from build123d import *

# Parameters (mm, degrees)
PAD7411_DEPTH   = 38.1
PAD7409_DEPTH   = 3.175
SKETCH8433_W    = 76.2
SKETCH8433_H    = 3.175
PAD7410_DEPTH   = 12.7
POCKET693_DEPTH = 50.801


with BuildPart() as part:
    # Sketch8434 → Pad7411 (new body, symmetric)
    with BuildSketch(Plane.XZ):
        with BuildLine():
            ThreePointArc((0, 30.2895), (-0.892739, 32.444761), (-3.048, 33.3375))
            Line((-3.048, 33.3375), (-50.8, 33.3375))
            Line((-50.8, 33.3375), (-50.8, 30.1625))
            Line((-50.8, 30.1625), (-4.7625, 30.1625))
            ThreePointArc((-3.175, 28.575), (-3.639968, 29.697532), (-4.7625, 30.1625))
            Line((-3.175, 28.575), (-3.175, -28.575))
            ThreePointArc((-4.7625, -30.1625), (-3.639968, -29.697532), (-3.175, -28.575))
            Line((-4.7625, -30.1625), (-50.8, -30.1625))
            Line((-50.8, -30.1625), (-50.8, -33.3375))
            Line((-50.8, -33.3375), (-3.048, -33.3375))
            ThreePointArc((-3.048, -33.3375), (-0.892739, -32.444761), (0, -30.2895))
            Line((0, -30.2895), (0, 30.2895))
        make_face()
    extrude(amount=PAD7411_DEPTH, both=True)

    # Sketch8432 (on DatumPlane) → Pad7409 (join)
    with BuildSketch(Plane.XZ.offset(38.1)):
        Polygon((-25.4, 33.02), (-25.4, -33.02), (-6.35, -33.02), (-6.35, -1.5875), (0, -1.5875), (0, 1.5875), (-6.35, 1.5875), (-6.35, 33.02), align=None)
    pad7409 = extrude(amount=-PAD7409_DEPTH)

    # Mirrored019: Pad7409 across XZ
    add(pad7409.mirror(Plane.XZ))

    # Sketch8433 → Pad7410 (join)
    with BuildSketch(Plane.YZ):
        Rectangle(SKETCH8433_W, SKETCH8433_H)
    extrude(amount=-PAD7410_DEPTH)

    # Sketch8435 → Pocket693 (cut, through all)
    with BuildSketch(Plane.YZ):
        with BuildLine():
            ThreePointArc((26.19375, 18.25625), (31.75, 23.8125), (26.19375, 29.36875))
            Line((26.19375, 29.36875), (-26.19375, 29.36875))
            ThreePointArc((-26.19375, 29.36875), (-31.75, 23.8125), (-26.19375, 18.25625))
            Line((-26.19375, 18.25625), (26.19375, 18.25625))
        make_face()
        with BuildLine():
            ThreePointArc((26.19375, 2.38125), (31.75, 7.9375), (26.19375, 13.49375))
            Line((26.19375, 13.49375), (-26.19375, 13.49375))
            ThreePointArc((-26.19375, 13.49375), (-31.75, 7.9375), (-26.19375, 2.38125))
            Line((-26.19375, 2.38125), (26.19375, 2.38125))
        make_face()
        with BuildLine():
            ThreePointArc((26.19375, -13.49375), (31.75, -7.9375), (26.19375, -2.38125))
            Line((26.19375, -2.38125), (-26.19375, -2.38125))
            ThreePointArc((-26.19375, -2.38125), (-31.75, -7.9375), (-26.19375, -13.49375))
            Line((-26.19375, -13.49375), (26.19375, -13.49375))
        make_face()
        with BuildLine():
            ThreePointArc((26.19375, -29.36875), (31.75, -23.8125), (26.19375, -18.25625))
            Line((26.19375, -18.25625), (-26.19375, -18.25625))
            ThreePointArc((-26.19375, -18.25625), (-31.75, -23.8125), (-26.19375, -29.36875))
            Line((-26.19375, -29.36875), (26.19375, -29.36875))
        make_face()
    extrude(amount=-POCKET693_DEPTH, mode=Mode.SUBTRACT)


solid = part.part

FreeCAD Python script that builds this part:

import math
import FreeCAD as App
import Part
import Sketcher
from FreeCAD import Vector
Q = App.Units.Quantity

doc = App.newDocument("Part")
params = doc.addObject("Spreadsheet::Sheet", "Params")
for row, (alias, value) in enumerate([
    ("sketch1_radius", "0.1200001 in"),
    ("sketch1_radius2", "0.0625 in"),
    ("sketch1_height", "2.25 in"),
    ("sketch1_width", "1.8125 in"),
    ("sketch1_height2", "0.125 in"),
    ("pad1_length", "3 in"),
    ("sketch2_height", "2.6 in"),
    ("sketch2_width", "0.75 in"),
    ("sketch2_height2", "0.125 in"),
    ("pad2_length", "0.125 in"),
    ("sketch3_width", "3 in"),
    ("sketch3_height", "0.125 in"),
    ("pad3_length", "0.5 in"),
    ("sketch4_radius", "0.21875 in"),
    ("sketch4_width", "2.0625 in"),
], start=1):
    params.set(f"A{row}", alias)
    params.set(f"B{row}", "=" + value)
    params.setAlias(f"B{row}", alias)

body = doc.addObject("PartDesign::Body", "Body")

# Sketch on XZ plane
sketch1 = body.newObject("Sketcher::SketchObject", "Sketch")
sketch1.AttachmentSupport = (doc.getObject("XZ_Plane"), [""])
sketch1.MapMode = "FlatFace"
sketch1.addGeometry(Part.ArcOfCircle(Part.Circle(Vector(-3, 30.3, 0), Vector(0, 0, 1), 3), math.radians(0), math.radians(90)), False)
sketch1.addGeometry(Part.LineSegment(Vector(-3, 33.3, 0), Vector(-50.8, 33.3, 0)), False)
sketch1.addGeometry(Part.LineSegment(Vector(-50.8, 33.3, 0), Vector(-50.8, 30.2, 0)), False)
sketch1.addGeometry(Part.LineSegment(Vector(-50.8, 30.2, 0), Vector(-4.8, 30.2, 0)), False)
sketch1.addGeometry(Part.ArcOfCircle(Part.Circle(Vector(-4.8, 28.6, 0), Vector(0, 0, 1), 1.6), math.radians(0), math.radians(90)), False)
sketch1.addGeometry(Part.LineSegment(Vector(-3.2, 28.6, 0), Vector(-3.2, -28.6, 0)), False)
sketch1.addGeometry(Part.ArcOfCircle(Part.Circle(Vector(-4.8, -28.6, 0), Vector(0, 0, 1), 1.6), math.radians(-90), math.radians(0)), False)
sketch1.addGeometry(Part.LineSegment(Vector(-4.8, -30.2, 0), Vector(-50.8, -30.2, 0)), False)
sketch1.addGeometry(Part.LineSegment(Vector(-50.8, -30.2, 0), Vector(-50.8, -33.3, 0)), False)
sketch1.addGeometry(Part.LineSegment(Vector(-50.8, -33.3, 0), Vector(-3, -33.3, 0)), False)
sketch1.addGeometry(Part.ArcOfCircle(Part.Circle(Vector(-3, -30.3, 0), Vector(0, 0, 1), 3), math.radians(-90), math.radians(0)), False)
sketch1.addGeometry(Part.LineSegment(Vector(0, -30.3, 0), Vector(0, 30.3, 0)), False)
sketch1.addConstraint(Sketcher.Constraint("Tangent", 0, 2, 1, 1))
sketch1.addConstraint(Sketcher.Constraint("Coincident", 1, 2, 2, 1))
sketch1.addConstraint(Sketcher.Constraint("Coincident", 2, 2, 3, 1))
sketch1.addConstraint(Sketcher.Constraint("Tangent", 3, 2, 4, 2))
sketch1.addConstraint(Sketcher.Constraint("Tangent", 4, 1, 5, 1))
sketch1.addConstraint(Sketcher.Constraint("Tangent", 5, 2, 6, 2))
sketch1.addConstraint(Sketcher.Constraint("Tangent", 6, 1, 7, 1))
sketch1.addConstraint(Sketcher.Constraint("Coincident", 7, 2, 8, 1))
sketch1.addConstraint(Sketcher.Constraint("Coincident", 8, 2, 9, 1))
sketch1.addConstraint(Sketcher.Constraint("Tangent", 9, 2, 10, 1))
sketch1.addConstraint(Sketcher.Constraint("Tangent", 10, 2, 11, 1))
sketch1.addConstraint(Sketcher.Constraint("Tangent", 11, 2, 0, 1))
sketch1.addConstraint(Sketcher.Constraint("Horizontal", 1))
sketch1.addConstraint(Sketcher.Constraint("Vertical", 2))
sketch1.addConstraint(Sketcher.Constraint("Horizontal", 3))
sketch1.addConstraint(Sketcher.Constraint("Vertical", 5))
sketch1.addConstraint(Sketcher.Constraint("Horizontal", 7))
sketch1.addConstraint(Sketcher.Constraint("Vertical", 8))
sketch1.addConstraint(Sketcher.Constraint("Horizontal", 9))
sketch1.addConstraint(Sketcher.Constraint("Vertical", 11))
sketch1.addConstraint(Sketcher.Constraint("Equal", 4, 6))
sketch1.addConstraint(Sketcher.Constraint("Equal", 0, 10))
sketch1.addConstraint(Sketcher.Constraint("Symmetric", 10, 2, 11, 2, -1, 1))
sketch1.addConstraint(Sketcher.Constraint("Symmetric", 2, 2, 7, 2, -1))
sketch1.addConstraint(Sketcher.Constraint("Radius", 0, Q("0.1200001 in")))
sketch1.addConstraint(Sketcher.Constraint("DistanceX", 1, 2, -1, 1, Q("2 in")))
sketch1.addConstraint(Sketcher.Constraint("Radius", 4, Q("0.0625 in")))
sketch1.addConstraint(Sketcher.Constraint("DistanceY", 5, 2, 5, 1, Q("2.25 in")))
sketch1.addConstraint(Sketcher.Constraint("DistanceX", 3, 1, 3, 2, Q("1.8125 in")))
sketch1.addConstraint(Sketcher.Constraint("DistanceY", 2, 2, 2, 1, Q("0.125 in")))
sketch1.setExpression("Constraints[24]", "Params.sketch1_radius")
sketch1.setExpression("Constraints[26]", "Params.sketch1_radius2")
sketch1.setExpression("Constraints[27]", "Params.sketch1_height")
sketch1.setExpression("Constraints[28]", "Params.sketch1_width")
sketch1.setExpression("Constraints[29]", "Params.sketch1_height2")
pad1 = body.newObject("PartDesign::Pad", "Pad")
pad1.Profile = sketch1
pad1.setExpression("Length", "Params.pad1_length")
pad1.Midplane = True

# Sketch on XZ plane
sketch2 = body.newObject("Sketcher::SketchObject", "Sketch001")
sketch2.AttachmentSupport = (doc.getObject("XZ_Plane"), [""])
sketch2.MapMode = "FlatFace"
sketch2.AttachmentOffset = App.Placement(Vector(0, 0, 1.5 * 25.4), App.Rotation())
sketch2.addGeometry(Part.LineSegment(Vector(-25.4, 33, 0), Vector(-25.4, -33, 0)), False)
sketch2.addGeometry(Part.LineSegment(Vector(-25.4, -33, 0), Vector(-6.3, -33, 0)), False)
sketch2.addGeometry(Part.LineSegment(Vector(-6.3, -33, 0), Vector(-6.3, -1.6, 0)), False)
sketch2.addGeometry(Part.LineSegment(Vector(-6.3, -1.6, 0), Vector(0, -1.6, 0)), False)
sketch2.addGeometry(Part.LineSegment(Vector(0, -1.6, 0), Vector(0, 1.6, 0)), False)
sketch2.addGeometry(Part.LineSegment(Vector(0, 1.6, 0), Vector(-6.3, 1.6, 0)), False)
sketch2.addGeometry(Part.LineSegment(Vector(-6.3, 1.6, 0), Vector(-6.3, 33, 0)), False)
sketch2.addGeometry(Part.LineSegment(Vector(-6.3, 33, 0), Vector(-25.4, 33, 0)), False)
sketch2.addConstraint(Sketcher.Constraint("Coincident", 0, 2, 1, 1))
sketch2.addConstraint(Sketcher.Constraint("Coincident", 1, 2, 2, 1))
sketch2.addConstraint(Sketcher.Constraint("Coincident", 2, 2, 3, 1))
sketch2.addConstraint(Sketcher.Constraint("Coincident", 3, 2, 4, 1))
sketch2.addConstraint(Sketcher.Constraint("Coincident", 4, 2, 5, 1))
sketch2.addConstraint(Sketcher.Constraint("Coincident", 5, 2, 6, 1))
sketch2.addConstraint(Sketcher.Constraint("Coincident", 6, 2, 7, 1))
sketch2.addConstraint(Sketcher.Constraint("Coincident", 7, 2, 0, 1))
sketch2.addConstraint(Sketcher.Constraint("Vertical", 0))
sketch2.addConstraint(Sketcher.Constraint("Horizontal", 1))
sketch2.addConstraint(Sketcher.Constraint("Vertical", 2))
sketch2.addConstraint(Sketcher.Constraint("Horizontal", 3))
sketch2.addConstraint(Sketcher.Constraint("Vertical", 4))
sketch2.addConstraint(Sketcher.Constraint("Horizontal", 5))
sketch2.addConstraint(Sketcher.Constraint("Vertical", 6))
sketch2.addConstraint(Sketcher.Constraint("Horizontal", 7))
sketch2.addConstraint(Sketcher.Constraint("Symmetric", 3, 2, 4, 2, -1, 1))
sketch2.addConstraint(Sketcher.Constraint("Symmetric", 1, 2, 6, 2, -1))
sketch2.addConstraint(Sketcher.Constraint("DistanceY", 0, 2, 0, 1, Q("2.6 in")))
sketch2.addConstraint(Sketcher.Constraint("DistanceX", 0, 2, -1, 1, Q("1 in")))
sketch2.addConstraint(Sketcher.Constraint("DistanceX", 1, 1, 1, 2, Q("0.75 in")))
sketch2.addConstraint(Sketcher.Constraint("DistanceY", 4, 1, 4, 2, Q("0.125 in")))
sketch2.setExpression("Constraints[18]", "Params.sketch2_height")
sketch2.setExpression("Constraints[20]", "Params.sketch2_width")
sketch2.setExpression("Constraints[21]", "Params.sketch2_height2")
pad2 = body.newObject("PartDesign::Pad", "Pad001")
pad2.Profile = sketch2
pad2.setExpression("Length", "Params.pad2_length")
pad2.Reversed = True
doc.recompute()

mirrored = body.newObject("PartDesign::Mirrored", "Mirrored")
mirrored.Originals = [pad2]
mirrored.MirrorPlane = (doc.getObject("XZ_Plane"), [""])
body.Tip = mirrored

# Sketch on YZ plane
sketch3 = body.newObject("Sketcher::SketchObject", "Sketch002")
sketch3.AttachmentSupport = (doc.getObject("YZ_Plane"), [""])
sketch3.MapMode = "FlatFace"
sketch3.addGeometry(Part.LineSegment(Vector(-38.1, 1.6, 0), Vector(-38.1, -1.6, 0)), False)
sketch3.addGeometry(Part.LineSegment(Vector(-38.1, -1.6, 0), Vector(38.1, -1.6, 0)), False)
sketch3.addGeometry(Part.LineSegment(Vector(38.1, -1.6, 0), Vector(38.1, 1.6, 0)), False)
sketch3.addGeometry(Part.LineSegment(Vector(38.1, 1.6, 0), Vector(-38.1, 1.6, 0)), False)
sketch3.addConstraint(Sketcher.Constraint("Coincident", 0, 2, 1, 1))
sketch3.addConstraint(Sketcher.Constraint("Coincident", 1, 2, 2, 1))
sketch3.addConstraint(Sketcher.Constraint("Coincident", 2, 2, 3, 1))
sketch3.addConstraint(Sketcher.Constraint("Coincident", 3, 2, 0, 1))
sketch3.addConstraint(Sketcher.Constraint("Vertical", 0))
sketch3.addConstraint(Sketcher.Constraint("Horizontal", 1))
sketch3.addConstraint(Sketcher.Constraint("Vertical", 2))
sketch3.addConstraint(Sketcher.Constraint("Horizontal", 3))
sketch3.addConstraint(Sketcher.Constraint("Symmetric", 0, 2, 2, 2, -1, 1))
sketch3.addConstraint(Sketcher.Constraint("DistanceX", 1, 1, 1, 2, Q("3 in")))
sketch3.addConstraint(Sketcher.Constraint("DistanceY", 0, 2, 0, 1, Q("0.125 in")))
sketch3.setExpression("Constraints[9]", "Params.sketch3_width")
sketch3.setExpression("Constraints[10]", "Params.sketch3_height")
pad3 = body.newObject("PartDesign::Pad", "Pad002")
pad3.Profile = sketch3
pad3.setExpression("Length", "Params.pad3_length")
pad3.Reversed = True

# Sketch on YZ plane
sketch4 = body.newObject("Sketcher::SketchObject", "Sketch003")
sketch4.AttachmentSupport = (doc.getObject("YZ_Plane"), [""])
sketch4.MapMode = "FlatFace"
sketch4.addGeometry(Part.ArcOfCircle(Part.Circle(Vector(26, 24, 0), Vector(0, 0, 1), 6), math.radians(-90), math.radians(90)), False)
sketch4.addGeometry(Part.LineSegment(Vector(26, 29, 0), Vector(-26, 29, 0)), False)
sketch4.addGeometry(Part.ArcOfCircle(Part.Circle(Vector(-26, 24, 0), Vector(0, 0, 1), 6), math.radians(90), math.radians(270)), False)
sketch4.addGeometry(Part.LineSegment(Vector(-26, 18, 0), Vector(26, 18, 0)), False)
sketch4.addGeometry(Part.ArcOfCircle(Part.Circle(Vector(26, 8, 0), Vector(0, 0, 1), 6), math.radians(-90), math.radians(90)), False)
sketch4.addGeometry(Part.LineSegment(Vector(26, 13, 0), Vector(-26, 13, 0)), False)
sketch4.addGeometry(Part.ArcOfCircle(Part.Circle(Vector(-26, 8, 0), Vector(0, 0, 1), 6), math.radians(90), math.radians(270)), False)
sketch4.addGeometry(Part.LineSegment(Vector(-26, 2, 0), Vector(26, 2, 0)), False)
sketch4.addGeometry(Part.ArcOfCircle(Part.Circle(Vector(26, -8, 0), Vector(0, 0, 1), 6), math.radians(-90), math.radians(90)), False)
sketch4.addGeometry(Part.LineSegment(Vector(26, -2, 0), Vector(-26, -2, 0)), False)
sketch4.addGeometry(Part.ArcOfCircle(Part.Circle(Vector(-26, -8, 0), Vector(0, 0, 1), 6), math.radians(90), math.radians(270)), False)
sketch4.addGeometry(Part.LineSegment(Vector(-26, -13, 0), Vector(26, -13, 0)), False)
sketch4.addGeometry(Part.ArcOfCircle(Part.Circle(Vector(26, -24, 0), Vector(0, 0, 1), 6), math.radians(-90), math.radians(90)), False)
sketch4.addGeometry(Part.LineSegment(Vector(26, -18, 0), Vector(-26, -18, 0)), False)
sketch4.addGeometry(Part.ArcOfCircle(Part.Circle(Vector(-26, -24, 0), Vector(0, 0, 1), 6), math.radians(90), math.radians(270)), False)
sketch4.addGeometry(Part.LineSegment(Vector(-26, -29, 0), Vector(26, -29, 0)), False)
sketch4.addConstraint(Sketcher.Constraint("Tangent", 0, 2, 1, 1))
sketch4.addConstraint(Sketcher.Constraint("Tangent", 1, 2, 2, 1))
sketch4.addConstraint(Sketcher.Constraint("Tangent", 2, 2, 3, 1))
sketch4.addConstraint(Sketcher.Constraint("Tangent", 3, 2, 0, 1))
sketch4.addConstraint(Sketcher.Constraint("Tangent", 4, 2, 5, 1))
sketch4.addConstraint(Sketcher.Constraint("Tangent", 5, 2, 6, 1))
sketch4.addConstraint(Sketcher.Constraint("Tangent", 6, 2, 7, 1))
sketch4.addConstraint(Sketcher.Constraint("Tangent", 7, 2, 4, 1))
sketch4.addConstraint(Sketcher.Constraint("Tangent", 8, 2, 9, 1))
sketch4.addConstraint(Sketcher.Constraint("Tangent", 9, 2, 10, 1))
sketch4.addConstraint(Sketcher.Constraint("Tangent", 10, 2, 11, 1))
sketch4.addConstraint(Sketcher.Constraint("Tangent", 11, 2, 8, 1))
sketch4.addConstraint(Sketcher.Constraint("Tangent", 12, 2, 13, 1))
sketch4.addConstraint(Sketcher.Constraint("Tangent", 13, 2, 14, 1))
sketch4.addConstraint(Sketcher.Constraint("Tangent", 14, 2, 15, 1))
sketch4.addConstraint(Sketcher.Constraint("Tangent", 15, 2, 12, 1))
sketch4.addConstraint(Sketcher.Constraint("Horizontal", 1))
sketch4.addConstraint(Sketcher.Constraint("Horizontal", 3))
sketch4.addConstraint(Sketcher.Constraint("Horizontal", 5))
sketch4.addConstraint(Sketcher.Constraint("Horizontal", 7))
sketch4.addConstraint(Sketcher.Constraint("Horizontal", 9))
sketch4.addConstraint(Sketcher.Constraint("Horizontal", 11))
sketch4.addConstraint(Sketcher.Constraint("Horizontal", 13))
sketch4.addConstraint(Sketcher.Constraint("Horizontal", 15))
sketch4.addConstraint(Sketcher.Constraint("Equal", 2, 4))
sketch4.addConstraint(Sketcher.Constraint("Equal", 6, 8))
sketch4.addConstraint(Sketcher.Constraint("Equal", 10, 12))
sketch4.addConstraint(Sketcher.Constraint("Symmetric", 6, 3, 8, 3, -1, 1))
sketch4.addConstraint(Sketcher.Constraint("Symmetric", 2, 3, 12, 3, -1, 1))
sketch4.addConstraint(Sketcher.Constraint("Vertical", 0, 3, 4, 3))
sketch4.addConstraint(Sketcher.Constraint("Vertical", 2, 3, 6, 3))
sketch4.addConstraint(Sketcher.Constraint("Vertical", 4, 3, 8, 3))
sketch4.addConstraint(Sketcher.Constraint("Vertical", 6, 3, 10, 3))
sketch4.addConstraint(Sketcher.Constraint("Vertical", 10, 3, 14, 3))
sketch4.addConstraint(Sketcher.Constraint("Radius", 0, Q("0.21875 in")))
sketch4.addConstraint(Sketcher.Constraint("DistanceX", 1, 2, 1, 1, Q("2.0625 in")))
sketch4.addConstraint(Sketcher.Constraint("DistanceY", 8, 3, 0, 3, Q("1.25 in")))
sketch4.addConstraint(Sketcher.Constraint("DistanceY", -1, 1, 0, 3, Q("0.9375 in")))
sketch4.setExpression("Constraints[34]", "Params.sketch4_radius")
sketch4.setExpression("Constraints[35]", "Params.sketch4_width")
pocket1 = body.newObject("PartDesign::Pocket", "Pocket")
pocket1.Profile = sketch4
pocket1.Type = "ThroughAll"

doc.recompute()
